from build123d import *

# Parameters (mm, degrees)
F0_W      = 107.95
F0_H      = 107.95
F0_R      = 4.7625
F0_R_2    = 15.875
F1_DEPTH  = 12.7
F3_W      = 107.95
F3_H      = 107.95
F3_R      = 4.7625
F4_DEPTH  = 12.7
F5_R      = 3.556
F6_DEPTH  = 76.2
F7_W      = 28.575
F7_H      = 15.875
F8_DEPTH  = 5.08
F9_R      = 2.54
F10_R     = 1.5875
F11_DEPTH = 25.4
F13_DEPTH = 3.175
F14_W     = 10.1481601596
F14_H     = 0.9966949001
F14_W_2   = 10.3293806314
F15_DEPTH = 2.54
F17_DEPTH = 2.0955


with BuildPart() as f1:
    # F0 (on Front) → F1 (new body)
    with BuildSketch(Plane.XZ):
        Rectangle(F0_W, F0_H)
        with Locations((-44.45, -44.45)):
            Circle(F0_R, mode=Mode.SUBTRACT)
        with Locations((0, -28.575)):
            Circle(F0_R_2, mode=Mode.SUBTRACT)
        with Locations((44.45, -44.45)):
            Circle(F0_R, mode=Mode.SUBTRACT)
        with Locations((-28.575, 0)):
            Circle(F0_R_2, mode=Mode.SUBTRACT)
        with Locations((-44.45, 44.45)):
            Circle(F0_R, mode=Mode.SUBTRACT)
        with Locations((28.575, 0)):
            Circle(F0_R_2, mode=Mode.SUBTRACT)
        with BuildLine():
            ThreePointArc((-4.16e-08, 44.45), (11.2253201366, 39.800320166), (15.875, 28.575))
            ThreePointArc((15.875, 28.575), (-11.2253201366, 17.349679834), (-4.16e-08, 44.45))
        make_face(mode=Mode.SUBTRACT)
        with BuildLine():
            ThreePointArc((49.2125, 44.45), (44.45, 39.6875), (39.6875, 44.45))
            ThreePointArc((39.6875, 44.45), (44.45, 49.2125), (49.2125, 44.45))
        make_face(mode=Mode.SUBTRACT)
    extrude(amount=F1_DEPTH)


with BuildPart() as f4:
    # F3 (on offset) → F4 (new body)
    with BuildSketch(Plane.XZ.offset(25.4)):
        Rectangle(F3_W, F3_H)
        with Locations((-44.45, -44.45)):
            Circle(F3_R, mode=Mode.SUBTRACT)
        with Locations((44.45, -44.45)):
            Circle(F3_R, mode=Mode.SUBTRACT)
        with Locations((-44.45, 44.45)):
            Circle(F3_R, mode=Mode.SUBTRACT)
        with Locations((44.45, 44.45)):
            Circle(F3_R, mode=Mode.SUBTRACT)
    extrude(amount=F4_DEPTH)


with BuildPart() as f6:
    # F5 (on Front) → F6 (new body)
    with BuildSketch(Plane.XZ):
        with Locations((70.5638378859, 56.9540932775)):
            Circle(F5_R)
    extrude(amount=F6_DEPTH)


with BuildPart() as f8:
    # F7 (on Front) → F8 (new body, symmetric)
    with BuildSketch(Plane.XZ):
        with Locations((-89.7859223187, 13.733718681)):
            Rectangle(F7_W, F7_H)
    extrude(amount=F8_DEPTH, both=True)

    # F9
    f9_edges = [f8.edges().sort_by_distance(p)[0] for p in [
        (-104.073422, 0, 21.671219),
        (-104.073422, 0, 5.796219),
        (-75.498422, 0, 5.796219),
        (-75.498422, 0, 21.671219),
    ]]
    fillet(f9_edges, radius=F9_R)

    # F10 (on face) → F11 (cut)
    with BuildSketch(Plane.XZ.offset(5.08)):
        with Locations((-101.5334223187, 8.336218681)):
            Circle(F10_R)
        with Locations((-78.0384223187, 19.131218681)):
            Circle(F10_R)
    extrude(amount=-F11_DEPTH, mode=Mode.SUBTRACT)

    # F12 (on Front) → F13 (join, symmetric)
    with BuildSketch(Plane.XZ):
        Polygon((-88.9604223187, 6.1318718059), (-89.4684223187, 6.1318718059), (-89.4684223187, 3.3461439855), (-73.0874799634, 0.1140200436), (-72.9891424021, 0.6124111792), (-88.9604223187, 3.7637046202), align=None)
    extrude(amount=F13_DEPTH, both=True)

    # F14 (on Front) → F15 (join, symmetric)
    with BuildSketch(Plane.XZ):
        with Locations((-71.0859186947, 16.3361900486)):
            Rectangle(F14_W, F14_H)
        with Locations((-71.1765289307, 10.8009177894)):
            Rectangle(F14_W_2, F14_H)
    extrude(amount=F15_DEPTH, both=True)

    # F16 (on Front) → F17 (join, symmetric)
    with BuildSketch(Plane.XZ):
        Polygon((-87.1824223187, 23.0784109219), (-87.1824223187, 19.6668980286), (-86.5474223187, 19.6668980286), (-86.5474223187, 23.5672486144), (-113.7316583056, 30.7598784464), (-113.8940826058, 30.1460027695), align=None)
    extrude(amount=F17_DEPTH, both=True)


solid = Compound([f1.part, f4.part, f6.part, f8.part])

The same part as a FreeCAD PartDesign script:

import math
import FreeCAD as App
import Part
import Sketcher
Q = App.Units.Quantity


def edges_at(feature, points):
    """Names of the edges that pass closest to the given points."""
    edges = feature.Shape.Edges
    near = lambda p: min(range(len(edges)), key=lambda i: edges[i].distToShape(Part.Vertex(*p))[0])
    return sorted({f"Edge{near(p) + 1}" for p in points})


def add_polygon(sketch, points):
    """Adds a closed chain of lines whose ends are joined by coincident constraints."""
    first, n = sketch.GeometryCount, len(points)
    for a, b in zip(points, points[1:] + points[:1]):
        sketch.addGeometry(Part.LineSegment(App.Vector(*a, 0), App.Vector(*b, 0)), False)
    for i in range(n):
        sketch.addConstraint(Sketcher.Constraint("Coincident", first + i, 2, first + (i + 1) % n, 1))

doc = App.newDocument("Part")
body = doc.addObject("PartDesign::Body", "Body")

# Sketch on XZ plane
sketch1 = body.newObject("Sketcher::SketchObject", "Sketch")
sketch1.AttachmentSupport = (doc.getObject("XZ_Plane"), [""])
sketch1.MapMode = "FlatFace"
add_polygon(sketch1, [(-53.975, 53.975), (-53.975, -53.975), (53.975, -53.975), (53.975, 53.975)])  # lines 0-3
sketch1.addGeometry(Part.Circle(App.Vector(-44.45, -44.45, 0), App.Vector(0, 0, 1), 4.7625), False)  # 4
sketch1.addGeometry(Part.Circle(App.Vector(0, -28.575, 0), App.Vector(0, 0, 1), 15.875), False)  # 5
sketch1.addGeometry(Part.Circle(App.Vector(44.45, -44.45, 0), App.Vector(0, 0, 1), 4.7625), False)  # 6
sketch1.addGeometry(Part.Circle(App.Vector(-28.575, 0, 0), App.Vector(0, 0, 1), 15.875), False)  # 7
sketch1.addGeometry(Part.Circle(App.Vector(-44.45, 44.45, 0), App.Vector(0, 0, 1), 4.7625), False)  # 8
sketch1.addGeometry(Part.Circle(App.Vector(28.575, 0, 0), App.Vector(0, 0, 1), 15.875), False)  # 9
sketch1.addGeometry(Part.ArcOfCircle(Part.Circle(App.Vector(0, 28.575, 0), App.Vector(0, 0, 1), 15.875), math.radians(90), math.radians(360)), False)  # 10
sketch1.addGeometry(Part.ArcOfCircle(Part.Circle(App.Vector(0, 28.575, 0), App.Vector(0, 0, 1), 15.875), math.radians(0), math.radians(90)), False)  # 11
sketch1.addGeometry(Part.Circle(App.Vector(44.45, 44.45, 0), App.Vector(0, 0, 1), 4.7625), False)  # 12
sketch1.addConstraint([
    Sketcher.Constraint("Tangent", 10, 1, 11, 2),
    Sketcher.Constraint("Coincident", 11, 1, 10, 2),
    Sketcher.Constraint("Vertical", 0),
    Sketcher.Constraint("Horizontal", 1),
    Sketcher.Constraint("Vertical", 2),
    Sketcher.Constraint("Horizontal", 3),
    Sketcher.Constraint("Equal", 4, 6),
    Sketcher.Constraint("Equal", 5, 7),
    Sketcher.Constraint("Equal", 6, 8),
    Sketcher.Constraint("Equal", 7, 9),
    Sketcher.Constraint("Equal", 9, 10),
    Sketcher.Constraint("Equal", 8, 12),
    Sketcher.Constraint("Symmetric", 6, 3, 8, 3, -1, 1),
    Sketcher.Constraint("Symmetric", 7, 3, 9, 3, -1, 1),
    Sketcher.Constraint("Symmetric", 5, 3, 10, 3, -1, 1),
    Sketcher.Constraint("Symmetric", 4, 3, 12, 3, -1, 1),
    Sketcher.Constraint("Symmetric", 0, 2, 2, 2, -1, 1),
    Sketcher.Constraint("Symmetric", 4, 3, 6, 3, -2),
    Sketcher.Constraint("PointOnObject", 5, 3, -2),
    Sketcher.Constraint("PointOnObject", 7, 3, -1),
    Sketcher.Constraint("PointOnObject", 10, 1, -2),
    Sketcher.Constraint("Horizontal", 12, 3, 10, 1),
    Sketcher.Constraint("Horizontal", 10, 3, 11, 1),
    Sketcher.Constraint("Equal", 3, 0),
    Sketcher.Constraint("Diameter", 5, Q("1.25 in")),
    Sketcher.Constraint("Diameter", 4, Q("0.375 in")),
    Sketcher.Constraint("DistanceY", 0, 2, 5, 3, Q("1 in")),
    Sketcher.Constraint("DistanceX", 0, 2, 7, 3, Q("1 in")),
    Sketcher.Constraint("DistanceX", 1, 1, 1, 2, Q("4.25 in")),
    Sketcher.Constraint("DistanceX", 4, 3, 6, 3, Q("3.5 in")),
])
pad1 = body.newObject("PartDesign::Pad", "Pad")
pad1.Profile = sketch1
pad1.Length = Q("0.5 in")
body2 = doc.addObject("PartDesign::Body", "Body001")

# Sketch on XZ plane
sketch2 = body2.newObject("Sketcher::SketchObject", "Sketch001")
sketch2.AttachmentSupport = (doc.getObject("XZ_Plane001"), [""])
sketch2.MapMode = "FlatFace"
sketch2.AttachmentOffset = App.Placement(App.Vector(0, 0, 1 * 25.4), App.Rotation())
add_polygon(sketch2, [(-53.975, 53.975), (-53.975, -53.975), (53.975, -53.975), (53.975, 53.975)])  # lines 0-3
sketch2.addGeometry(Part.Circle(App.Vector(-44.45, -44.45, 0), App.Vector(0, 0, 1), 4.7625), False)  # 4
sketch2.addGeometry(Part.Circle(App.Vector(44.45, -44.45, 0), App.Vector(0, 0, 1), 4.7625), False)  # 5
sketch2.addGeometry(Part.Circle(App.Vector(-44.45, 44.45, 0), App.Vector(0, 0, 1), 4.7625), False)  # 6
sketch2.addGeometry(Part.Circle(App.Vector(44.45, 44.45, 0), App.Vector(0, 0, 1), 4.7625), False)  # 7
sketch2.addConstraint([
    Sketcher.Constraint("Vertical", 0),
    Sketcher.Constraint("Horizontal", 1),
    Sketcher.Constraint("Vertical", 2),
    Sketcher.Constraint("Horizontal", 3),
    Sketcher.Constraint("Equal", 4, 5),
    Sketcher.Constraint("Equal", 5, 6),
    Sketcher.Constraint("Equal", 6, 7),
    Sketcher.Constraint("Symmetric", 5, 3, 6, 3, -1, 1),
    Sketcher.Constraint("Symmetric", 4, 3, 7, 3, -1, 1),
    Sketcher.Constraint("Symmetric", 0, 2, 2, 2, -1, 1),
    Sketcher.Constraint("Symmetric", 4, 3, 5, 3, -2),
    Sketcher.Constraint("Equal", 3, 0),
    Sketcher.Constraint("Diameter", 4, Q("0.375 in")),
    Sketcher.Constraint("DistanceX", 1, 1, 1, 2, Q("4.25 in")),
    Sketcher.Constraint("DistanceX", 4, 3, 5, 3, Q("3.5 in")),
    Sketcher.Constraint("DistanceY", 4, 3, 6, 3, Q("3.5 in")),
])
pad2 = body2.newObject("PartDesign::Pad", "Pad001")
pad2.Profile = sketch2
pad2.Length = Q("0.5 in")
body3 = doc.addObject("PartDesign::Body", "Body002")

# Sketch on XZ plane
sketch3 = body3.newObject("Sketcher::SketchObject", "Sketch002")
sketch3.AttachmentSupport = (doc.getObject("XZ_Plane002"), [""])
sketch3.MapMode = "FlatFace"
sketch3.addGeometry(Part.Circle(App.Vector(70.563838, 56.954093, 0), App.Vector(0, 0, 1), 3.556), False)
sketch3.addConstraint([
    Sketcher.Constraint("Diameter", 0, Q("0.28 in")),
    Sketcher.Constraint("DistanceX", -1, 1, 0, 3, Q("70.563838 mm")),
    Sketcher.Constraint("DistanceY", -1, 1, 0, 3, Q("56.954093 mm")),
])
pad3 = body3.newObject("PartDesign::Pad", "Pad002")
pad3.Profile = sketch3
pad3.Length = Q("3 in")
body4 = doc.addObject("PartDesign::Body", "Body003")

# Sketch on XZ plane
sketch4 = body4.newObject("Sketcher::SketchObject", "Sketch003")
sketch4.AttachmentSupport = (doc.getObject("XZ_Plane003"), [""])
sketch4.MapMode = "FlatFace"
add_polygon(sketch4, [(-104.073422, 21.671219), (-104.073422, 5.796219), (-75.498422, 5.796219), (-75.498422, 21.671219)])  # lines 0-3
sketch4.addConstraint([
    Sketcher.Constraint("Vertical", 0),
    Sketcher.Constraint("Horizontal", 1),
    Sketcher.Constraint("Vertical", 2),
    Sketcher.Constraint("Horizontal", 3),
    Sketcher.Constraint("DistanceX", 1, 1, 1, 2, Q("1.125 in")),
    Sketcher.Constraint("DistanceY", 0, 2, 0, 1, Q("0.625 in")),
    Sketcher.Constraint("DistanceY", -1, 1, 0, 2, Q("5.796219 mm")),
    Sketcher.Constraint("DistanceX", 0, 2, -1, 1, Q("104.073422 mm")),
])
pad4 = body4.newObject("PartDesign::Pad", "Pad003")
pad4.Profile = sketch4
pad4.Length = Q("0.4 in")
pad4.Midplane = True
doc.recompute()

fillet = body4.newObject("PartDesign::Fillet", "Fillet")
fillet.Base = (pad4, edges_at(pad4, [
    (-104.073, 0, 21.671),
    (-104.073, 0, 5.796),
    (-75.498, 0, 5.796),
    (-75.498, 0, 21.671),
]))
fillet.Radius = Q("0.1 in")

# Sketch on XZ plane
sketch5 = body4.newObject("Sketcher::SketchObject", "Sketch004")
sketch5.AttachmentSupport = (doc.getObject("XZ_Plane003"), [""])
sketch5.MapMode = "FlatFace"
sketch5.AttachmentOffset = App.Placement(App.Vector(0, 0, 0.2 * 25.4), App.Rotation())
sketch5.addGeometry([
    Part.Circle(App.Vector(-101.533422, 8.336219, 0), App.Vector(0, 0, 1), 1.5875),
    Part.Circle(App.Vector(-78.038422, 19.131219, 0), App.Vector(0, 0, 1), 1.5875),
], False)
sketch5.addConstraint([
    Sketcher.Constraint("Equal", 0, 1),
    Sketcher.Constraint("Diameter", 0, Q("0.125 in")),
    Sketcher.Constraint("DistanceX", 0, 3, 1, 3, Q("0.925 in")),
    Sketcher.Constraint("DistanceY", 0, 3, 1, 3, Q("0.425 in")),
    Sketcher.Constraint("DistanceY", -1, 1, 0, 3, Q("8.336219 mm")),
    Sketcher.Constraint("DistanceX", 0, 3, -1, 1, Q("101.533422 mm")),
])
pocket1 = body4.newObject("PartDesign::Pocket", "Pocket")
pocket1.Profile = sketch5
pocket1.Length = Q("1 in")

# Sketch on XZ plane
sketch6 = body4.newObject("Sketcher::SketchObject", "Sketch005")
sketch6.AttachmentSupport = (doc.getObject("XZ_Plane003"), [""])
sketch6.MapMode = "FlatFace"
add_polygon(sketch6, [(-88.960422, 6.131872), (-89.468422, 6.131872), (-89.468422, 3.346144), (-73.08748, 0.11402), (-72.989142, 0.612411), (-88.960422, 3.763705)])  # lines 0-5
sketch6.addConstraint([
    Sketcher.Constraint("Horizontal", 0),
    Sketcher.Constraint("Vertical", 1),
    Sketcher.Constraint("Vertical", 5),
    Sketcher.Constraint("DistanceX", 0, 2, 0, 1, Q("0.02 in")),
    Sketcher.Constraint("Distance", 3, Q("0.02 in")),
    Sketcher.Constraint("DistanceY", 1, 2, 1, 1, Q("2.785728 mm")),
    Sketcher.Constraint("DistanceY", 5, 1, 5, 2, Q("2.368167 mm")),
    Sketcher.Constraint("DistanceY", -1, 1, 0, 2, Q("6.131872 mm")),
    Sketcher.Constraint("DistanceX", 2, 2, -1, 1, Q("73.08748 mm")),
    Sketcher.Constraint("DistanceY", -1, 1, 2, 2, Q("0.11402 mm")),
    Sketcher.Constraint("DistanceY", -1, 1, 3, 2, Q("0.612411 mm")),
    Sketcher.Constraint("DistanceX", 1, 2, 3, 2, Q("16.47928 mm")),
])
pad5 = body4.newObject("PartDesign::Pad", "Pad004")
pad5.Profile = sketch6
pad5.Length = Q("0.25 in")
pad5.Midplane = True

# Sketch on XZ plane
sketch7 = body4.newObject("Sketcher::SketchObject", "Sketch006")
sketch7.AttachmentSupport = (doc.getObject("XZ_Plane003"), [""])
sketch7.MapMode = "FlatFace"
add_polygon(sketch7, [(-76.159999, 16.834537), (-76.159999, 15.837843), (-66.011839, 15.837843), (-66.011839, 16.834537)])  # lines 0-3
add_polygon(sketch7, [(-76.341219, 11.299265), (-76.341219, 10.30257), (-66.011839, 10.30257), (-66.011839, 11.299265)])  # lines 4-7
sketch7.addConstraint([
    Sketcher.Constraint("Vertical", 0),
    Sketcher.Constraint("Horizontal", 1),
    Sketcher.Constraint("Vertical", 2),
    Sketcher.Constraint("Horizontal", 3),
    Sketcher.Constraint("Vertical", 4),
    Sketcher.Constraint("Horizontal", 5),
    Sketcher.Constraint("Vertical", 6),
    Sketcher.Constraint("Horizontal", 7),
    Sketcher.Constraint("Vertical", 2, 2, 5, 2),
    Sketcher.Constraint("Equal", 2, 4),
    Sketcher.Constraint("DistanceX", 1, 1, 1, 2, Q("10.14816 mm")),
    Sketcher.Constraint("DistanceX", 5, 1, 5, 2, Q("10.329381 mm")),
    Sketcher.Constraint("DistanceX", 0, 2, -1, 1, Q("76.159999 mm")),
    Sketcher.Constraint("DistanceY", 0, 2, 0, 1, Q("0.996695 mm")),
    Sketcher.Constraint("DistanceY", -1, 1, 4, 2, Q("10.30257 mm")),
    Sketcher.Constraint("DistanceY", -1, 1, 0, 2, Q("15.837843 mm")),
])
pad6 = body4.newObject("PartDesign::Pad", "Pad005")
pad6.Profile = sketch7
pad6.Length = Q("0.2 in")
pad6.Midplane = True

# Sketch on XZ plane
sketch8 = body4.newObject("Sketcher::SketchObject", "Sketch007")
sketch8.AttachmentSupport = (doc.getObject("XZ_Plane003"), [""])
sketch8.MapMode = "FlatFace"
add_polygon(sketch8, [(-87.182422, 23.078411), (-87.182422, 19.666898), (-86.547422, 19.666898), (-86.547422, 23.567249), (-113.731658, 30.759878), (-113.894083, 30.146003)])  # lines 0-5
sketch8.addConstraint([
    Sketcher.Constraint("Vertical", 0),
    Sketcher.Constraint("Horizontal", 1),
    Sketcher.Constraint("Vertical", 2),
    Sketcher.Constraint("Perpendicular", 3, 4),
    Sketcher.Constraint("Perpendicular", 4, 5),
    Sketcher.Constraint("DistanceX", 1, 1, 1, 2, Q("0.025 in")),
    Sketcher.Constraint("Distance", 4, Q("0.025 in")),
    Sketcher.Constraint("DistanceY", 2, 1, 2, 2, Q("3.900351 mm")),
    Sketcher.Constraint("DistanceY", -1, 1, 0, 2, Q("19.666898 mm")),
    Sketcher.Constraint("DistanceY", 0, 2, 0, 1, Q("3.411513 mm")),
    Sketcher.Constraint("DistanceX", 3, 2, -1, 1, Q("113.731658 mm")),
    Sketcher.Constraint("DistanceY", -1, 1, 3, 2, Q("30.759878 mm")),
])
pad7 = body4.newObject("PartDesign::Pad", "Pad006")
pad7.Profile = sketch8
pad7.Length = Q("0.165 in")
pad7.Midplane = True

doc.recompute()
